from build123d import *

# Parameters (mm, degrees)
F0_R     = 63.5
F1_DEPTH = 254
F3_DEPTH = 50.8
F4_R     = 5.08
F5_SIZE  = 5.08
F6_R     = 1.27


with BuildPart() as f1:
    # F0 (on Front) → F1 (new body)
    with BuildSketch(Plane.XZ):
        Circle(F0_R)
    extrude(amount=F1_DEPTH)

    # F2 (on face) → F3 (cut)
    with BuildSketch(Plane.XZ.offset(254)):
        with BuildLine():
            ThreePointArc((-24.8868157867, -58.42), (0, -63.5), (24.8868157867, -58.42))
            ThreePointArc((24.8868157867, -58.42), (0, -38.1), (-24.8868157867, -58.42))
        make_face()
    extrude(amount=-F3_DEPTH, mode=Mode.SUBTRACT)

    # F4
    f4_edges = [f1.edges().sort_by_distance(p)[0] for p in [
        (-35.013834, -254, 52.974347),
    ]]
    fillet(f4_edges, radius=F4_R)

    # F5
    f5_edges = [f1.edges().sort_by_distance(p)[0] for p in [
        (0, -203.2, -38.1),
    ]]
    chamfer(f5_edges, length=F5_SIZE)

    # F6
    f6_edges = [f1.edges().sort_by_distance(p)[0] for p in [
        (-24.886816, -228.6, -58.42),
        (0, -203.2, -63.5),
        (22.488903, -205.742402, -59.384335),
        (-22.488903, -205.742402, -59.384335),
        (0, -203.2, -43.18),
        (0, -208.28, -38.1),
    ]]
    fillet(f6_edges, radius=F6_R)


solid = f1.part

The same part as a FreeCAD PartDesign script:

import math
import FreeCAD as App
import Part
import Sketcher
Q = App.Units.Quantity


def edges_at(feature, points):
    """Names of the edges that pass closest to the given points."""
    edges = feature.Shape.Edges
    near = lambda p: min(range(len(edges)), key=lambda i: edges[i].distToShape(Part.Vertex(*p))[0])
    return sorted({f"Edge{near(p) + 1}" for p in points})

doc = App.newDocument("Part")
body = doc.addObject("PartDesign::Body", "Body")

sketch1 = doc.addObject("Sketcher::SketchObject", "Sketch")
body.addObject(sketch1)
sketch1.AttachmentSupport = (doc.XZ_Plane, [""])
sketch1.MapMode = "FlatFace"
sketch1.addGeometry(Part.Circle(App.Vector(0, 0, 0), App.Vector(0, 0, 1), 64), False)
sketch1.addConstraint([
    Sketcher.Constraint("Coincident", 0, 3, -1, 1),
    Sketcher.Constraint("Diameter", 0, Q("5 in")),
])
pad1 = doc.addObject("PartDesign::Pad", "Pad")
body.addObject(pad1)
pad1.Profile = sketch1
pad1.Length = Q("10 in")

sketch2 = doc.addObject("Sketcher::SketchObject", "Sketch001")
body.addObject(sketch2)
sketch2.AttachmentSupport = (doc.XZ_Plane, [""])
sketch2.MapMode = "FlatFace"
sketch2.AttachmentOffset = App.Placement(App.Vector(0, 0, 10 * 25.4), App.Rotation())
sketch2.addGeometry([
    Part.ArcOfCircle(Part.Circle(App.Vector(0, 0, 0), App.Vector(0, 0, 1), 64), math.radians(-113), math.radians(-67)),
    Part.ArcOfCircle(Part.Circle(App.Vector(0, -64, 0), App.Vector(0, 0, 1), 25), math.radians(12), math.radians(168)),
], False)
sketch2.addConstraint([
    Sketcher.Constraint("Coincident", 0, 1, 1, 2),
    Sketcher.Constraint("Coincident", 1, 1, 0, 2),
    Sketcher.Constraint("Coincident", 0, 3, -1, 1),
    Sketcher.Constraint("PointOnObject", 1, 3, -2),
    Sketcher.Constraint("Radius", 1, Q("1 in")),
    Sketcher.Constraint("Radius", 0, Q("2.5 in")),
    Sketcher.Constraint("DistanceY", 1, 3, -1, 1, Q("2.5 in")),
])
pocket1 = doc.addObject("PartDesign::Pocket", "Pocket")
body.addObject(pocket1)
pocket1.Profile = sketch2
pocket1.Length = Q("2 in")
doc.recompute()

fillet = doc.addObject("PartDesign::Fillet", "Fillet")
body.addObject(fillet)
fillet.Base = (pocket1, edges_at(pocket1, [(-35.014, -254, 52.974)]))
fillet.Radius = Q("0.2 in")
doc.recompute()

chamfer = doc.addObject("PartDesign::Chamfer", "Chamfer")
body.addObject(chamfer)
chamfer.Base = (fillet, edges_at(fillet, [(0, -203.2, -38.1)]))
chamfer.Size = Q("0.2 in")
doc.recompute()

fillet2 = doc.addObject("PartDesign::Fillet", "Fillet001")
body.addObject(fillet2)
fillet2.Base = (chamfer, edges_at(chamfer, [
    (-24.887, -228.6, -58.42),
    (0, -203.2, -63.5),
    (22.489, -205.742, -59.384),
    (-22.489, -205.742, -59.384),
    (0, -203.2, -43.18),
    (0, -208.28, -38.1),
]))
fillet2.Radius = Q("0.05 in")

doc.recompute()
